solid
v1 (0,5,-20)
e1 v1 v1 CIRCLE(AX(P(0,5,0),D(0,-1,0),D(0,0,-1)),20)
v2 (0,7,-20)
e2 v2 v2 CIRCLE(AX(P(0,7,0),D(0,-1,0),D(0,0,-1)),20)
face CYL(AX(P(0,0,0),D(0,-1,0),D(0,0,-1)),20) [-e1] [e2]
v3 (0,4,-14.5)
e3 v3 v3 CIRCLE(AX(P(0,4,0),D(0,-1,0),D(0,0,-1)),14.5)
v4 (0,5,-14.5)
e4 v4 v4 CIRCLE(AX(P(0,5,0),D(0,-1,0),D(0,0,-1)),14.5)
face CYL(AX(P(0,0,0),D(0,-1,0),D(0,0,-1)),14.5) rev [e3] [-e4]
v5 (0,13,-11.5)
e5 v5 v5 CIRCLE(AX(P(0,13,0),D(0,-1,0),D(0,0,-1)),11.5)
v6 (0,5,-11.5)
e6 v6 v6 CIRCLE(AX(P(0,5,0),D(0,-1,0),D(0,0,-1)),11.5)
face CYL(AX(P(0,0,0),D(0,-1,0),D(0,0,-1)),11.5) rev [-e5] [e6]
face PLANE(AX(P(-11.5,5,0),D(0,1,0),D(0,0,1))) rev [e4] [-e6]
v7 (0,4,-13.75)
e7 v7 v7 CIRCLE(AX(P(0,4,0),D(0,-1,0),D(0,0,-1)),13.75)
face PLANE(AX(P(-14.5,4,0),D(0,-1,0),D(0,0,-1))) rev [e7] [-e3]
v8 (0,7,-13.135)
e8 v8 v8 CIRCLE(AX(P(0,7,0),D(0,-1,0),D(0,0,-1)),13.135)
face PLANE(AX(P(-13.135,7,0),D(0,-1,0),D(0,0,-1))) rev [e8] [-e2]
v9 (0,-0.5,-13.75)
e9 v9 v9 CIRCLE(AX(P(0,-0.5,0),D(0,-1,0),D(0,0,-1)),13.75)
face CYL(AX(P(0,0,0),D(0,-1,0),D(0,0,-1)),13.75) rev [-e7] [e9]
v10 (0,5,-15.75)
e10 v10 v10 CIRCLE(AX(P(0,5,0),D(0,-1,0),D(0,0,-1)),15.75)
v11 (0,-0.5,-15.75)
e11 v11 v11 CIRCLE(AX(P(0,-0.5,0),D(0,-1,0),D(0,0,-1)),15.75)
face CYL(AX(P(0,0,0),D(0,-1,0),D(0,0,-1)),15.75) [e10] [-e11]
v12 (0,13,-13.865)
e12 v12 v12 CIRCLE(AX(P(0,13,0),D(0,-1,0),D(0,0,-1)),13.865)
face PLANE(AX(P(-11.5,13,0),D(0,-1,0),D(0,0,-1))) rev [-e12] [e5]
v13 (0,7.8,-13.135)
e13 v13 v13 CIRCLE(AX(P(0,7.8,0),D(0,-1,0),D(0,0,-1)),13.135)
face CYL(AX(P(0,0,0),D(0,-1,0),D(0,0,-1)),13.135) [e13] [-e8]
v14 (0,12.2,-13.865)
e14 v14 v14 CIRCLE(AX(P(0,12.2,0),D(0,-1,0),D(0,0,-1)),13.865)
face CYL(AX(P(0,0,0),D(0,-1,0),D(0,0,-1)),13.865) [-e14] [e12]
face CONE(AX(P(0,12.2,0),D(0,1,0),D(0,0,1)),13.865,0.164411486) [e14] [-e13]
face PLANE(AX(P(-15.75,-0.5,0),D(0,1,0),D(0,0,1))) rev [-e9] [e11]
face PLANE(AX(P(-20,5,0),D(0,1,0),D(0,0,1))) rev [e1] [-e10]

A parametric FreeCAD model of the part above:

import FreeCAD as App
import Part
import Sketcher

V = App.Vector
Q = App.Units.Quantity


def add_polygon(sketch, points):
    """Adds a closed chain of lines whose ends are joined by coincident constraints."""
    first, n = sketch.GeometryCount, len(points)
    for a, b in zip(points, points[1:] + points[:1]):
        sketch.addGeometry(Part.LineSegment(App.Vector(*a, 0), App.Vector(*b, 0)), False)
    for i in range(n):
        sketch.addConstraint(Sketcher.Constraint("Coincident", first + i, 2, first + (i + 1) % n, 1))

doc = App.newDocument("Part")
body = doc.addObject("PartDesign::Body", "Body")

# Sketch on XY plane
sketch1 = body.newObject("Sketcher::SketchObject", "Sketch")
sketch1.AttachmentSupport = (doc.getObject("XY_Plane"), [""])
sketch1.MapMode = "FlatFace"
add_polygon(sketch1, [(-11.5, 5), (-11.5, 13), (-13.9, 13), (-13.9, 12.2), (-13.1, 7.8), (-13.1, 7), (-20, 7), (-20, 5), (-15.8, 5), (-15.8, -0.5), (-13.8, -0.5), (-13.8, 4), (-14.5, 4), (-14.5, 5)])  # lines 0-13
sketch1.addConstraint([
    Sketcher.Constraint("Vertical", 0),
    Sketcher.Constraint("Horizontal", 1),
    Sketcher.Constraint("Vertical", 2),
    Sketcher.Constraint("Vertical", 4),
    Sketcher.Constraint("Horizontal", 5),
    Sketcher.Constraint("Vertical", 6),
    Sketcher.Constraint("Horizontal", 7),
    Sketcher.Constraint("Vertical", 8),
    Sketcher.Constraint("Horizontal", 9),
    Sketcher.Constraint("Vertical", 10),
    Sketcher.Constraint("Horizontal", 11),
    Sketcher.Constraint("Vertical", 12),
    Sketcher.Constraint("Horizontal", 13),
    Sketcher.Constraint("Horizontal", 7, 2, 12, 2),
    Sketcher.Constraint("Equal", 2, 4),
    Sketcher.Constraint("Equal", 9, 6),
    Sketcher.Constraint("DistanceX", 9, 1, 9, 2, Q("2 mm")),
    Sketcher.Constraint("DistanceX", 13, 1, 13, 2, Q("3 mm")),
    Sketcher.Constraint("DistanceY", 0, 1, 0, 2, Q("8 mm")),
    Sketcher.Constraint("DistanceY", 12, 1, 12, 2, Q("1 mm")),
    Sketcher.Constraint("DistanceY", 2, 2, 2, 1, Q("0.8 mm")),
    Sketcher.Constraint("DistanceY", 8, 2, 8, 1, Q("5.5 mm")),
    Sketcher.Constraint("DistanceY", -1, 1, 0, 2, Q("13 mm")),
    Sketcher.Constraint("DistanceX", 5, 2, -1, 1, Q("20 mm")),
    Sketcher.Constraint("DistanceX", 7, 1, 7, 2, Q("4.25 mm")),
    Sketcher.Constraint("DistanceX", 11, 2, 11, 1, Q("0.75 mm")),
    Sketcher.Constraint("DistanceX", 1, 2, 1, 1, Q("2.365 mm")),
    Sketcher.Constraint("DistanceX", 5, 2, 5, 1, Q("6.865 mm")),
])
revolution = body.newObject("PartDesign::Revolution", "Revolution")
revolution.Profile = sketch1
revolution.ReferenceAxis = (sketch1, ["V_Axis"])
revolution.Angle = 360

doc.recompute()
